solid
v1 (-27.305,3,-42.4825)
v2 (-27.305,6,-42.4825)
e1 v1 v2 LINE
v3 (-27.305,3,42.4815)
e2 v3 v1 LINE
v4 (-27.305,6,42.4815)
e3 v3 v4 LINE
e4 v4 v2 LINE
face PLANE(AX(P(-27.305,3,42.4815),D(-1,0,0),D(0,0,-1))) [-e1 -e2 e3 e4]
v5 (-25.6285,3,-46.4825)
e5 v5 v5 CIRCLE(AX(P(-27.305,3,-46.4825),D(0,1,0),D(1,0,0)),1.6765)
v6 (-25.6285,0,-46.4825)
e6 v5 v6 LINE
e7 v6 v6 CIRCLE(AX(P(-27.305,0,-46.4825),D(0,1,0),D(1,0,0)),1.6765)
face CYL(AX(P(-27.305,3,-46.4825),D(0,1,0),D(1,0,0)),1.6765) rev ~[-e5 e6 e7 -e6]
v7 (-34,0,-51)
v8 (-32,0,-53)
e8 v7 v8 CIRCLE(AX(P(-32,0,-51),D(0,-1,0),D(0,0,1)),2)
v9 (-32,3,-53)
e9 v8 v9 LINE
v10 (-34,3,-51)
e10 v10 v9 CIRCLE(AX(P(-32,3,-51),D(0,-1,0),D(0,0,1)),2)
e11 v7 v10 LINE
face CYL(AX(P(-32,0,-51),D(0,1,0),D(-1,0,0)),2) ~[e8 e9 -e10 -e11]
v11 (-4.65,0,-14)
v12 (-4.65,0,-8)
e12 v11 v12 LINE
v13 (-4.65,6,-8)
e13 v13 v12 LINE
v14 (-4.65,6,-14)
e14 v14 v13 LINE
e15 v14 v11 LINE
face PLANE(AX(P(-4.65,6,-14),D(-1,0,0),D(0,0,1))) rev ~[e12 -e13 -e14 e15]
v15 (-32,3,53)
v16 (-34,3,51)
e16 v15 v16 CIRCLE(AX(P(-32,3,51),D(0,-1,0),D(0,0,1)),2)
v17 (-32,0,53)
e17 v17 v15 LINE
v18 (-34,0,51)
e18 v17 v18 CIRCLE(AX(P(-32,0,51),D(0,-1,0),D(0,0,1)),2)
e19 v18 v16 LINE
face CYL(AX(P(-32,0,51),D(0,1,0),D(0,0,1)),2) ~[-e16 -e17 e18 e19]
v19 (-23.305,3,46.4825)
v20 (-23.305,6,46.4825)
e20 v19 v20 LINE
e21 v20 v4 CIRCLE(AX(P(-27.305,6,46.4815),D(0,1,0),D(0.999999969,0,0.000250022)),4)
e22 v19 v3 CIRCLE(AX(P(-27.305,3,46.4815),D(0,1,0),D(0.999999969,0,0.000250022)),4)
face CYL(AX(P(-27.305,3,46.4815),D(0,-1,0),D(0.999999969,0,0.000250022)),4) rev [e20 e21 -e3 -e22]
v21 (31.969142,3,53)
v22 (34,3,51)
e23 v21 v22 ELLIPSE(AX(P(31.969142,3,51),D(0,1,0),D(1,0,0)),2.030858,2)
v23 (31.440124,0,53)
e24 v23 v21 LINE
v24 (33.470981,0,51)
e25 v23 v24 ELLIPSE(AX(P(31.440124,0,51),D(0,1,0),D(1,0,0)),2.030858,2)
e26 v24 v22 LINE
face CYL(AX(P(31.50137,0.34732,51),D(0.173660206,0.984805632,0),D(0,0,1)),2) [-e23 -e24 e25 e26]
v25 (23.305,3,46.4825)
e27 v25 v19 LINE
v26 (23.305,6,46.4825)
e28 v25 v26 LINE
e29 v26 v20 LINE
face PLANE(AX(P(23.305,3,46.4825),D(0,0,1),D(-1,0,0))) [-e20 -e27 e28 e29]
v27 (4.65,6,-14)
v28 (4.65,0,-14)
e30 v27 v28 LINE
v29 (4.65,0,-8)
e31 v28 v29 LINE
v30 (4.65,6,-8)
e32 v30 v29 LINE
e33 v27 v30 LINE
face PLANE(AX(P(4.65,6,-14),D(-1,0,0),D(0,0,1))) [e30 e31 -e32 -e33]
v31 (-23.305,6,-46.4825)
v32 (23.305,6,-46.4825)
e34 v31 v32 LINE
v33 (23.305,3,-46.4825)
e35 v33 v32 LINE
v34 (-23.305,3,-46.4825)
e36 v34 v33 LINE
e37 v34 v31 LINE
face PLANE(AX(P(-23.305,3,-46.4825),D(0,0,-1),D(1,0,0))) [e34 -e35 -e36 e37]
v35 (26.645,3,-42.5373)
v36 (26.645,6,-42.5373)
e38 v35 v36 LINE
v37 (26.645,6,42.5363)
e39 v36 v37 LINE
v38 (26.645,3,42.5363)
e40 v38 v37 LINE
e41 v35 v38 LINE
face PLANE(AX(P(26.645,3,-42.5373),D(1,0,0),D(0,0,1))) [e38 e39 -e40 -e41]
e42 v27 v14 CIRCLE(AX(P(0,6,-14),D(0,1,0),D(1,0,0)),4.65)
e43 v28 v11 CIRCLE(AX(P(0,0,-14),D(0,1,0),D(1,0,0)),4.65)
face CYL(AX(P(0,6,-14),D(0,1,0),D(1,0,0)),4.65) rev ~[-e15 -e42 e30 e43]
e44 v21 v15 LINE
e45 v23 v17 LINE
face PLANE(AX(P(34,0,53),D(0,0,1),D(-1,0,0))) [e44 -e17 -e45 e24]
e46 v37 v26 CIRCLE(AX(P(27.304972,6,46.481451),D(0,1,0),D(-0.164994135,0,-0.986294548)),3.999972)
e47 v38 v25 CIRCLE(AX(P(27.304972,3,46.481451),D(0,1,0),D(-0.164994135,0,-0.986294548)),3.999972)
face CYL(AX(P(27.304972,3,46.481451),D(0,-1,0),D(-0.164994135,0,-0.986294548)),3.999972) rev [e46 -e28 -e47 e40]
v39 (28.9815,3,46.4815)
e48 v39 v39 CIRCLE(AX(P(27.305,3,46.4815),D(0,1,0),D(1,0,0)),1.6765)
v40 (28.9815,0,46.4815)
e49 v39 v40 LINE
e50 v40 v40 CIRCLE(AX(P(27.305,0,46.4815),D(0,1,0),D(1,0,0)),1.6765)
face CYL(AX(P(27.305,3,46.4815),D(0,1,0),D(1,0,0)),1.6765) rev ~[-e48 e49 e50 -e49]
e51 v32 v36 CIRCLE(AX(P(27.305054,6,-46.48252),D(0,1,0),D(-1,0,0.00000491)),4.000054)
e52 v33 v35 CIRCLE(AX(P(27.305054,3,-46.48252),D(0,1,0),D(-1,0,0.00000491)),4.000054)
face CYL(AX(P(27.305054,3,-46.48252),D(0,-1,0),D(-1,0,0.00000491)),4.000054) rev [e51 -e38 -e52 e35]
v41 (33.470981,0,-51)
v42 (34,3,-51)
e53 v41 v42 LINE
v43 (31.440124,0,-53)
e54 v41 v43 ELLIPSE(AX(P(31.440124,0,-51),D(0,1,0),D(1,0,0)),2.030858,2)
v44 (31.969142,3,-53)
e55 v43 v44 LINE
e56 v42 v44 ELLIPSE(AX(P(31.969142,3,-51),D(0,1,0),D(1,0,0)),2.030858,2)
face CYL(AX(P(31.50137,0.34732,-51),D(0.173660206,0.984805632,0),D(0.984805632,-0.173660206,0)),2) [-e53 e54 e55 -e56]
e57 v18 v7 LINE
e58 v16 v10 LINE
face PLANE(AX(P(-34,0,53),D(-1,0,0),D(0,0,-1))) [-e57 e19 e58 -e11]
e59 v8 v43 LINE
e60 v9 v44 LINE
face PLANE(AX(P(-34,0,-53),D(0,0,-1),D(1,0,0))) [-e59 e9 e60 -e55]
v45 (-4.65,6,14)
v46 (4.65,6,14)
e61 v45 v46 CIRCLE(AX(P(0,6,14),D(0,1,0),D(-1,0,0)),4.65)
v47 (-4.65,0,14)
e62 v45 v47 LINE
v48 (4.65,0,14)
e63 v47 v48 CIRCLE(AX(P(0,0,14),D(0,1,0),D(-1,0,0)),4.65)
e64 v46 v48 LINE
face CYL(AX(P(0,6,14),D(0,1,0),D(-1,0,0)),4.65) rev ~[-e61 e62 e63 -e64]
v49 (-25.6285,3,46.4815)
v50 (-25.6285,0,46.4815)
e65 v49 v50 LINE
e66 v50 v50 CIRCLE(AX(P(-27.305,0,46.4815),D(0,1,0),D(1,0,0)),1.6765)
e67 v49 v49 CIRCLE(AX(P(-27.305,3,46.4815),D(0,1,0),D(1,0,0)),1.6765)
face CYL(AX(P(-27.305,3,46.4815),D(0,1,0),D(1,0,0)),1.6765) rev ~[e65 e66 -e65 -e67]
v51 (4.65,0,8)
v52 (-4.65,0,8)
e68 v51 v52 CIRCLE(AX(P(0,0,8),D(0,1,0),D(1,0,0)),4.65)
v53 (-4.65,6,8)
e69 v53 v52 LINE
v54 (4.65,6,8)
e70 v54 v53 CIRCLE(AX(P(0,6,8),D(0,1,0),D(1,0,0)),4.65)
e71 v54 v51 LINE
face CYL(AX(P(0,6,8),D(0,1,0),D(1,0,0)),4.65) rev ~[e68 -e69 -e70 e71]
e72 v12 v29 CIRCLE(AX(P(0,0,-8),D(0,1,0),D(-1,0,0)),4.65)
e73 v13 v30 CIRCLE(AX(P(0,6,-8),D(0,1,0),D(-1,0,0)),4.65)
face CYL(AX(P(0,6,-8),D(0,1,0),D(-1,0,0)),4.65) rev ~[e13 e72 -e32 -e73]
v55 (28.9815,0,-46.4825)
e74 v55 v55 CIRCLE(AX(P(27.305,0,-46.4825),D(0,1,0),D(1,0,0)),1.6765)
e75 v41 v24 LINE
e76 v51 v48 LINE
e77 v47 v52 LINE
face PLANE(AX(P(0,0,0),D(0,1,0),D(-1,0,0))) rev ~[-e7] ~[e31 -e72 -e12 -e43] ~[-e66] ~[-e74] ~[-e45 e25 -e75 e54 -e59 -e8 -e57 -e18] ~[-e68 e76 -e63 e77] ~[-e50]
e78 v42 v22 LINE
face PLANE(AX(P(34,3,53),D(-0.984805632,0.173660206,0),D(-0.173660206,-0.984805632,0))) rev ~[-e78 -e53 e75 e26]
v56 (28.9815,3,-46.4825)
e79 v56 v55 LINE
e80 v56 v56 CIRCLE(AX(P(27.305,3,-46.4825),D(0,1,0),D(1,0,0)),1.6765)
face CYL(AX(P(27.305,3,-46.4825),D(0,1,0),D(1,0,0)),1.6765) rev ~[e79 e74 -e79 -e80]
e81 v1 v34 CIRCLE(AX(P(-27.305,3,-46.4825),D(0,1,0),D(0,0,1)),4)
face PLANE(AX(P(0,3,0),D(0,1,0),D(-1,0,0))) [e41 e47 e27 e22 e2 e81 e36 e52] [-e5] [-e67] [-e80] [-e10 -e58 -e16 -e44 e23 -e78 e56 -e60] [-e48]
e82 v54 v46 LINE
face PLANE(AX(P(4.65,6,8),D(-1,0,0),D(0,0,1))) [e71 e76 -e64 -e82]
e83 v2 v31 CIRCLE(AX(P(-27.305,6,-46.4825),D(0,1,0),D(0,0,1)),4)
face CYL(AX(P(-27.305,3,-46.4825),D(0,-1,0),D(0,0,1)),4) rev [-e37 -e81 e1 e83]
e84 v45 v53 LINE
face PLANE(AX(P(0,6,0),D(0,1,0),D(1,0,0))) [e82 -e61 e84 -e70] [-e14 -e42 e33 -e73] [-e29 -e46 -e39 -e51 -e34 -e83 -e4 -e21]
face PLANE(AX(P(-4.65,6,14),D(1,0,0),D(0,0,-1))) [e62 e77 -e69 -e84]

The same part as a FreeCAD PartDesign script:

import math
import FreeCAD as App
import Part
import Sketcher
from FreeCAD import Vector
Q = App.Units.Quantity


def edges_at(feature, points):
    """Names of the edges that pass closest to the given points."""
    edges = feature.Shape.Edges
    near = lambda p: min(range(len(edges)), key=lambda i: edges[i].distToShape(Part.Vertex(*p))[0])
    return sorted({f"Edge{near(p) + 1}" for p in points})

doc = App.newDocument("Part")
body = doc.addObject("PartDesign::Body", "Body")

# Sketch on XZ plane
sketch1 = doc.addObject("Sketcher::SketchObject", "Sketch")
body.addObject(sketch1)
sketch1.AttachmentSupport = (doc.XZ_Plane, [""])
sketch1.MapMode = "FlatFace"
sketch1.addGeometry(Part.LineSegment(Vector(-34, 53, 0), Vector(34, 53, 0)), False)
sketch1.addGeometry(Part.LineSegment(Vector(34, 53, 0), Vector(34, -53, 0)), False)
sketch1.addGeometry(Part.LineSegment(Vector(34, -53, 0), Vector(-34, -53, 0)), False)
sketch1.addGeometry(Part.LineSegment(Vector(-34, -53, 0), Vector(-34, 53, 0)), False)
sketch1.addConstraint(Sketcher.Constraint("Coincident", 0, 2, 1, 1))
sketch1.addConstraint(Sketcher.Constraint("Coincident", 1, 2, 2, 1))
sketch1.addConstraint(Sketcher.Constraint("Coincident", 2, 2, 3, 1))
sketch1.addConstraint(Sketcher.Constraint("Coincident", 3, 2, 0, 1))
sketch1.addConstraint(Sketcher.Constraint("Horizontal", 0))
sketch1.addConstraint(Sketcher.Constraint("Vertical", 1))
sketch1.addConstraint(Sketcher.Constraint("Horizontal", 2))
sketch1.addConstraint(Sketcher.Constraint("Vertical", 3))
sketch1.addConstraint(Sketcher.Constraint("Symmetric", 0, 2, 2, 2, -1, 1))
sketch1.addConstraint(Sketcher.Constraint("DistanceX", 0, 1, 0, 2, 68.0))
sketch1.addConstraint(Sketcher.Constraint("DistanceY", 1, 2, 1, 1, 106.0))
pad1 = doc.addObject("PartDesign::Pad", "Pad")
body.addObject(pad1)
pad1.Profile = sketch1
pad1.Length = 3
pad1.Reversed = True

# Sketch on XZ plane
sketch2 = doc.addObject("Sketcher::SketchObject", "Sketch001")
body.addObject(sketch2)
sketch2.AttachmentSupport = (doc.XZ_Plane, [""])
sketch2.MapMode = "FlatFace"
sketch2.AttachmentOffset = App.Placement(Vector(0, 0, -3), App.Rotation())
sketch2.addGeometry(Part.Circle(Vector(-27.305, 46.4815, 0), Vector(0, 0, 1), 1.6765), False)
sketch2.addGeometry(Part.Circle(Vector(27.305, 46.4815, 0), Vector(0, 0, 1), 1.6765), False)
sketch2.addGeometry(Part.Circle(Vector(-27.305, -46.4825, 0), Vector(0, 0, 1), 1.6765), False)
sketch2.addGeometry(Part.Circle(Vector(27.305, -46.4825, 0), Vector(0, 0, 1), 1.6765), False)
sketch2.addConstraint(Sketcher.Constraint("Equal", 0, 1))
sketch2.addConstraint(Sketcher.Constraint("Equal", 1, 2))
sketch2.addConstraint(Sketcher.Constraint("Equal", 2, 3))
sketch2.addConstraint(Sketcher.Constraint("Symmetric", 0, 3, 1, 3, -2))
sketch2.addConstraint(Sketcher.Constraint("Symmetric", 2, 3, 3, 3, -2))
sketch2.addConstraint(Sketcher.Constraint("Vertical", 0, 3, 2, 3))
sketch2.addConstraint(Sketcher.Constraint("Diameter", 0, 3.353))
sketch2.addConstraint(Sketcher.Constraint("DistanceX", 0, 3, 1, 3, 54.61))
sketch2.addConstraint(Sketcher.Constraint("DistanceY", 2, 3, 0, 3, 92.964))
sketch2.addConstraint(Sketcher.Constraint("DistanceY", -1, 1, 0, 3, 46.4815))
pocket1 = doc.addObject("PartDesign::Pocket", "Pocket")
body.addObject(pocket1)
pocket1.Profile = sketch2
pocket1.Length = 3
pocket1.Reversed = True

# Sketch on XZ plane
sketch3 = doc.addObject("Sketcher::SketchObject", "Sketch002")
body.addObject(sketch3)
sketch3.AttachmentSupport = (doc.XZ_Plane, [""])
sketch3.MapMode = "FlatFace"
sketch3.AttachmentOffset = App.Placement(Vector(0, 0, -3), App.Rotation())
sketch3.addGeometry(Part.ArcOfCircle(Part.Circle(Vector(-27.305, 46.4815, 0), Vector(0, 0, 1), 4), math.radians(-90), math.radians(0.014324)), False)
sketch3.addGeometry(Part.LineSegment(Vector(-23.305, 46.4825, 0), Vector(23.305, 46.4825, 0)), False)
sketch3.addGeometry(Part.ArcOfCircle(Part.Circle(Vector(27.305, 46.4815, 0), Vector(0, 0, 1), 4.000025), math.radians(179.985676), math.radians(260.502826)), False)
sketch3.addGeometry(Part.LineSegment(Vector(26.645, 42.5363, 0), Vector(26.645, -42.5373, 0)), False)
sketch3.addGeometry(Part.ArcOfCircle(Part.Circle(Vector(27.305, -46.4825, 0), Vector(0, 0, 1), 4), math.radians(99.497174), math.radians(180)), False)
sketch3.addGeometry(Part.LineSegment(Vector(23.305, -46.4825, 0), Vector(-23.305, -46.4825, 0)), False)
sketch3.addGeometry(Part.ArcOfCircle(Part.Circle(Vector(-27.305, -46.4825, 0), Vector(0, 0, 1), 4), math.radians(0), math.radians(90)), False)
sketch3.addGeometry(Part.LineSegment(Vector(-27.305, -42.4825, 0), Vector(-27.305, 42.4815, 0)), False)
sketch3.addConstraint(Sketcher.Constraint("Coincident", 0, 2, 1, 1))
sketch3.addConstraint(Sketcher.Constraint("Coincident", 1, 2, 2, 1))
sketch3.addConstraint(Sketcher.Constraint("Coincident", 2, 2, 3, 1))
sketch3.addConstraint(Sketcher.Constraint("Coincident", 3, 2, 4, 1))
sketch3.addConstraint(Sketcher.Constraint("Coincident", 4, 2, 5, 1))
sketch3.addConstraint(Sketcher.Constraint("Coincident", 5, 2, 6, 1))
sketch3.addConstraint(Sketcher.Constraint("Coincident", 6, 2, 7, 1))
sketch3.addConstraint(Sketcher.Constraint("Coincident", 7, 2, 0, 1))
sketch3.addConstraint(Sketcher.Constraint("Horizontal", 1))
sketch3.addConstraint(Sketcher.Constraint("Vertical", 3))
sketch3.addConstraint(Sketcher.Constraint("Horizontal", 5))
sketch3.addConstraint(Sketcher.Constraint("Vertical", 7))
sketch3.addConstraint(Sketcher.Constraint("Equal", 0, 2))
sketch3.addConstraint(Sketcher.Constraint("Equal", 2, 4))
sketch3.addConstraint(Sketcher.Constraint("Equal", 4, 6))
sketch3.addConstraint(Sketcher.Constraint("Symmetric", 0, 2, 4, 2, -1, 1))
sketch3.addConstraint(Sketcher.Constraint("Symmetric", 0, 3, 2, 3, -2))
sketch3.addConstraint(Sketcher.Constraint("Symmetric", 4, 3, 6, 3, -2))
sketch3.addConstraint(Sketcher.Constraint("Horizontal", 6, 3, 4, 2))
sketch3.addConstraint(Sketcher.Constraint("Vertical", 0, 3, 6, 2))
sketch3.addConstraint(Sketcher.Constraint("Radius", 0, 4.0))
sketch3.addConstraint(Sketcher.Constraint("DistanceX", 1, 1, 1, 2, 46.61))
sketch3.addConstraint(Sketcher.Constraint("DistanceY", 7, 1, 7, 2, 84.964))
sketch3.addConstraint(Sketcher.Constraint("DistanceX", 2, 2, 2, 3, 0.66))
sketch3.addConstraint(Sketcher.Constraint("DistanceY", 0, 3, 0, 2, 0.001))
pad2 = doc.addObject("PartDesign::Pad", "Pad001")
body.addObject(pad2)
pad2.Profile = sketch3
pad2.Length = 3
pad2.Reversed = True

# Sketch on XY plane
sketch4 = doc.addObject("Sketcher::SketchObject", "Sketch003")
body.addObject(sketch4)
sketch4.AttachmentSupport = (doc.XY_Plane, [""])
sketch4.MapMode = "FlatFace"
sketch4.AttachmentOffset = App.Placement(Vector(0, 0, 53), App.Rotation())
sketch4.addGeometry(Part.LineSegment(Vector(34, 3, 0), Vector(33.4537, -0.098, 0)), False)
sketch4.addGeometry(Part.LineSegment(Vector(33.4537, -0.098, 0), Vector(34, -0.098, 0)), False)
sketch4.addGeometry(Part.LineSegment(Vector(34, -0.098, 0), Vector(34, 3, 0)), False)
sketch4.addConstraint(Sketcher.Constraint("Coincident", 0, 2, 1, 1))
sketch4.addConstraint(Sketcher.Constraint("Coincident", 1, 2, 2, 1))
sketch4.addConstraint(Sketcher.Constraint("Coincident", 2, 2, 0, 1))
sketch4.addConstraint(Sketcher.Constraint("Horizontal", 1))
sketch4.addConstraint(Sketcher.Constraint("Vertical", 2))
sketch4.addConstraint(Sketcher.Constraint("Angle", 0, Q("-100.0007 deg")))
sketch4.addConstraint(Sketcher.Constraint("DistanceX", -1, 1, 1, 2, 34.0))
sketch4.addConstraint(Sketcher.Constraint("DistanceY", -1, 1, 2, 2, 3.0))
sketch4.addConstraint(Sketcher.Constraint("DistanceY", 2, 1, 2, 2, 3.098))
pocket2 = doc.addObject("PartDesign::Pocket", "Pocket001")
body.addObject(pocket2)
pocket2.Profile = sketch4
pocket2.Length = 114
doc.recompute()

fillet = doc.addObject("PartDesign::Fillet", "Fillet")
body.addObject(fillet)
fillet.Base = (pocket2, edges_at(pocket2, [
    (-34, 1.5, 53),
    (33.736, 1.5, 53),
    (-34, 1.5, -53),
    (33.736, 1.5, -53),
]))
fillet.Radius = 2

# Sketch on XZ plane
sketch5 = doc.addObject("Sketcher::SketchObject", "Sketch004")
body.addObject(sketch5)
sketch5.AttachmentSupport = (doc.XZ_Plane, [""])
sketch5.MapMode = "FlatFace"
sketch5.AttachmentOffset = App.Placement(Vector(0, 0, -6), App.Rotation())
sketch5.addGeometry(Part.LineSegment(Vector(4.65, -8, 0), Vector(4.65, -14, 0)), False)
sketch5.addGeometry(Part.ArcOfCircle(Part.Circle(Vector(0, -14, 0), Vector(0, 0, 1), 4.65), math.radians(180), math.radians(360)), False)
sketch5.addGeometry(Part.LineSegment(Vector(-4.65, -14, 0), Vector(-4.65, -8, 0)), False)
sketch5.addGeometry(Part.ArcOfCircle(Part.Circle(Vector(0, -8, 0), Vector(0, 0, 1), 4.65), math.radians(0), math.radians(180)), False)
sketch5.addGeometry(Part.LineSegment(Vector(4.65, 14, 0), Vector(4.65, 8, 0)), False)
sketch5.addGeometry(Part.ArcOfCircle(Part.Circle(Vector(0, 8, 0), Vector(0, 0, 1), 4.65), math.radians(180), math.radians(360)), False)
sketch5.addGeometry(Part.LineSegment(Vector(-4.65, 8, 0), Vector(-4.65, 14, 0)), False)
sketch5.addGeometry(Part.ArcOfCircle(Part.Circle(Vector(0, 14, 0), Vector(0, 0, 1), 4.65), math.radians(0), math.radians(180)), False)
sketch5.addConstraint(Sketcher.Constraint("Tangent", 0, 2, 1, 2))
sketch5.addConstraint(Sketcher.Constraint("Tangent", 1, 1, 2, 1))
sketch5.addConstraint(Sketcher.Constraint("Tangent", 2, 2, 3, 2))
sketch5.addConstraint(Sketcher.Constraint("Tangent", 3, 1, 0, 1))
sketch5.addConstraint(Sketcher.Constraint("Tangent", 4, 2, 5, 2))
sketch5.addConstraint(Sketcher.Constraint("Tangent", 5, 1, 6, 1))
sketch5.addConstraint(Sketcher.Constraint("Tangent", 6, 2, 7, 2))
sketch5.addConstraint(Sketcher.Constraint("Tangent", 7, 1, 4, 1))
sketch5.addConstraint(Sketcher.Constraint("Vertical", 0))
sketch5.addConstraint(Sketcher.Constraint("Vertical", 2))
sketch5.addConstraint(Sketcher.Constraint("Vertical", 4))
sketch5.addConstraint(Sketcher.Constraint("Vertical", 6))
sketch5.addConstraint(Sketcher.Constraint("Equal", 3, 5))
sketch5.addConstraint(Sketcher.Constraint("Symmetric", 3, 3, 5, 3, -1, 1))
sketch5.addConstraint(Sketcher.Constraint("Symmetric", 1, 3, 7, 3, -1))
sketch5.addConstraint(Sketcher.Constraint("DistanceY", 0, 2, 0, 1, 6.0))
sketch5.addConstraint(Sketcher.Constraint("Radius", 1, 4.65))
sketch5.addConstraint(Sketcher.Constraint("DistanceY", 3, 3, -1, 1, 8.0))
pocket3 = doc.addObject("PartDesign::Pocket", "Pocket002")
body.addObject(pocket3)
pocket3.Profile = sketch5
pocket3.Length = 10
pocket3.Reversed = True

doc.recompute()
